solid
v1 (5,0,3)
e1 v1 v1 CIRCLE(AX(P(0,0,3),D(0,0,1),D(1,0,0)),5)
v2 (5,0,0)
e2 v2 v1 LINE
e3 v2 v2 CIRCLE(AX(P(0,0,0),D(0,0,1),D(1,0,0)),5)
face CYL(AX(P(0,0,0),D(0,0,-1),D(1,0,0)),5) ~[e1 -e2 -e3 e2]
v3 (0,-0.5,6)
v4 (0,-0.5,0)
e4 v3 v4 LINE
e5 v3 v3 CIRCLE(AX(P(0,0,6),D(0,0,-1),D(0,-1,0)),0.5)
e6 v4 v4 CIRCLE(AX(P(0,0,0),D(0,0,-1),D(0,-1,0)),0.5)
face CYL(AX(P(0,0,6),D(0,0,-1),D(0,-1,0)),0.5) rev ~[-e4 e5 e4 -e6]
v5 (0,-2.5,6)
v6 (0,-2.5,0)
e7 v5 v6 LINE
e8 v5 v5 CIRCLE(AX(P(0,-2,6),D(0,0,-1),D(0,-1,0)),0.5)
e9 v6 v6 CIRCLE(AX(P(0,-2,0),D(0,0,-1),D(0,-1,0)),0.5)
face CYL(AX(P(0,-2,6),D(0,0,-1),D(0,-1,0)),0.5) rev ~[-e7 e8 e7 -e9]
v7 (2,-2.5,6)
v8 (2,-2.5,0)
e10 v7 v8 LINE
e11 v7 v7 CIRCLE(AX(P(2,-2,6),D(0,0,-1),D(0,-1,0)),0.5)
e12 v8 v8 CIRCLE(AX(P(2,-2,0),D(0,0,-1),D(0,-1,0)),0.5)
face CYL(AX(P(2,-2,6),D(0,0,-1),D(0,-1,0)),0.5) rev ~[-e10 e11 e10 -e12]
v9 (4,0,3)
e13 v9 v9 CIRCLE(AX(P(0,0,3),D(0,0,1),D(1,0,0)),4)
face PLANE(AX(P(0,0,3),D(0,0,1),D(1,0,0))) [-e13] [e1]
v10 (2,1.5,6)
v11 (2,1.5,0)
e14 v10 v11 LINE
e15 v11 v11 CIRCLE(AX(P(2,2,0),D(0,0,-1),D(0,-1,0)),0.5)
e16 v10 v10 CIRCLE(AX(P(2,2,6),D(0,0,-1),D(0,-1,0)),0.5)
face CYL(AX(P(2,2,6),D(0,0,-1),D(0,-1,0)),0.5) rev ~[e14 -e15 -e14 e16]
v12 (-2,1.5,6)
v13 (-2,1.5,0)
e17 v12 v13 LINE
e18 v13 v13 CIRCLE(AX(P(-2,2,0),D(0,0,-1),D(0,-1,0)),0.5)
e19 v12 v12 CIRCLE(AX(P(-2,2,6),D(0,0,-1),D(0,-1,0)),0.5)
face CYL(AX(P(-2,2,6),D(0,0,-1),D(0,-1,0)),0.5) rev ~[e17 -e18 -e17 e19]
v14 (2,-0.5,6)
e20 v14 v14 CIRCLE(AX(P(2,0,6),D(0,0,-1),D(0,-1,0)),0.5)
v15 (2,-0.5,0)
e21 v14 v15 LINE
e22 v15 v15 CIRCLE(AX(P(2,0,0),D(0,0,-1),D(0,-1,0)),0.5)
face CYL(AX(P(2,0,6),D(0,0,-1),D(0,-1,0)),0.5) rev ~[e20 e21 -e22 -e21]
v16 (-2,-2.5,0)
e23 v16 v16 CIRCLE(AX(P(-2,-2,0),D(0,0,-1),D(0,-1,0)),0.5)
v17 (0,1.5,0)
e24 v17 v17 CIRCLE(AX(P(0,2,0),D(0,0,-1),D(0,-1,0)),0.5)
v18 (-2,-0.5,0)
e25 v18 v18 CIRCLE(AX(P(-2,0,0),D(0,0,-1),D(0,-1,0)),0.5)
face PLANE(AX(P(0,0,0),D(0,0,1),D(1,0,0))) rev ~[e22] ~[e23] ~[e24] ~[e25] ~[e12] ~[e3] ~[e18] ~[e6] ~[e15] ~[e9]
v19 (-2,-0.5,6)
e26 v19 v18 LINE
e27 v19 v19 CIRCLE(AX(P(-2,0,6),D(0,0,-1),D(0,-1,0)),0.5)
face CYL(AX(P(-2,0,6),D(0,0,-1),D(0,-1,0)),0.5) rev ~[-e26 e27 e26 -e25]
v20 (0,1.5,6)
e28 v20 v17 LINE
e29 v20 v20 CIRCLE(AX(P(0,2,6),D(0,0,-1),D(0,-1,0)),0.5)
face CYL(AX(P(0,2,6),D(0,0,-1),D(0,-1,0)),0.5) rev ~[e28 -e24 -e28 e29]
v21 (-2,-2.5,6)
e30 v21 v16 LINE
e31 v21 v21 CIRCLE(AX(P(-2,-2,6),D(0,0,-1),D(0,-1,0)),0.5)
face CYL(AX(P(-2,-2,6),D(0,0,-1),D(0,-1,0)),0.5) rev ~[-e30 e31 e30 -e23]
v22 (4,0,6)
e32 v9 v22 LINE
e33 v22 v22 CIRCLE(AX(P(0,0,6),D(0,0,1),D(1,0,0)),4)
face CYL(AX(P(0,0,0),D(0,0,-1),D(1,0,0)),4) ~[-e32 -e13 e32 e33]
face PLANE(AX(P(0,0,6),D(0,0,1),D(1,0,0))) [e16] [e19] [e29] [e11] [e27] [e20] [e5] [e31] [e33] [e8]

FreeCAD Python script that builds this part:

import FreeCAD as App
import Part
import Sketcher

doc = App.newDocument("Part")
body = doc.addObject("PartDesign::Body", "Body")

# Sketch on XY plane
sketch1 = doc.addObject("Sketcher::SketchObject", "Sketch")
body.addObject(sketch1)
sketch1.AttachmentSupport = (doc.XY_Plane, [""])
sketch1.MapMode = "FlatFace"
sketch1.addGeometry([
    Part.Circle(App.Vector(0, 0, 0), App.Vector(0, 0, 1), 5),
    Part.Circle(App.Vector(0, 0, 0), App.Vector(0, 0, 1), 4),
], False)
sketch1.addConstraint([
    Sketcher.Constraint("Coincident", 0, 3, -1, 1),
    Sketcher.Constraint("Coincident", 1, 3, -1, 1),
    Sketcher.Constraint("Diameter", 1, 8.0),
    Sketcher.Constraint("Diameter", 0, 10.0),
])
pad1 = doc.addObject("PartDesign::Pad", "Pad")
body.addObject(pad1)
pad1.Profile = sketch1
pad1.Length = 3

# Sketch on XY plane
sketch2 = doc.addObject("Sketcher::SketchObject", "Sketch001")
body.addObject(sketch2)
sketch2.AttachmentSupport = (doc.XY_Plane, [""])
sketch2.MapMode = "FlatFace"
sketch2.addGeometry(Part.Circle(App.Vector(0, 0, 0), App.Vector(0, 0, 1), 4), False)
sketch2.addConstraint([
    Sketcher.Constraint("Coincident", 0, 3, -1, 1),
    Sketcher.Constraint("Diameter", 0, 8.0),
])
pad2 = doc.addObject("PartDesign::Pad", "Pad001")
body.addObject(pad2)
pad2.Profile = sketch2
pad2.Length = 6

# Sketch on XY plane
sketch3 = doc.addObject("Sketcher::SketchObject", "Sketch002")
body.addObject(sketch3)
sketch3.AttachmentSupport = (doc.XY_Plane, [""])
sketch3.MapMode = "FlatFace"
sketch3.AttachmentOffset = App.Placement(App.Vector(0, 0, 6), App.Rotation())
sketch3.addGeometry([
    Part.Circle(App.Vector(2, -2, 0), App.Vector(0, 0, 1), 0.5),  # 0
    Part.Circle(App.Vector(0, -2, 0), App.Vector(0, 0, 1), 0.5),  # 1
    Part.Circle(App.Vector(-2, -2, 0), App.Vector(0, 0, 1), 0.5),  # 2
    Part.Circle(App.Vector(2, 0, 0), App.Vector(0, 0, 1), 0.5),  # 3
    Part.Circle(App.Vector(0, 0, 0), App.Vector(0, 0, 1), 0.5),  # 4
    Part.Circle(App.Vector(-2, 0, 0), App.Vector(0, 0, 1), 0.5),  # 5
    Part.Circle(App.Vector(2, 2, 0), App.Vector(0, 0, 1), 0.5),  # 6
    Part.Circle(App.Vector(0, 2, 0), App.Vector(0, 0, 1), 0.5),  # 7
    Part.Circle(App.Vector(-2, 2, 0), App.Vector(0, 0, 1), 0.5),  # 8
], False)
sketch3.addConstraint([
    Sketcher.Constraint("Coincident", 4, 3, -1, 1),
    Sketcher.Constraint("Equal", 0, 1),
    Sketcher.Constraint("Equal", 1, 2),
    Sketcher.Constraint("Equal", 2, 3),
    Sketcher.Constraint("Equal", 3, 4),
    Sketcher.Constraint("Equal", 4, 5),
    Sketcher.Constraint("Equal", 5, 6),
    Sketcher.Constraint("Equal", 6, 7),
    Sketcher.Constraint("Equal", 7, 8),
    Sketcher.Constraint("Symmetric", 3, 3, 5, 3, -1, 1),
    Sketcher.Constraint("Symmetric", 2, 3, 6, 3, -1, 1),
    Sketcher.Constraint("Symmetric", 1, 3, 7, 3, -1, 1),
    Sketcher.Constraint("Symmetric", 0, 3, 8, 3, -1, 1),
    Sketcher.Constraint("Symmetric", 0, 3, 2, 3, -2),
    Sketcher.Constraint("PointOnObject", 1, 3, -2),
    Sketcher.Constraint("PointOnObject", 3, 3, -1),
    Sketcher.Constraint("Horizontal", 0, 3, 1, 3),
    Sketcher.Constraint("Vertical", 0, 3, 3, 3),
    Sketcher.Constraint("Diameter", 0, 1.0),
    Sketcher.Constraint("DistanceX", -1, 1, 0, 3, 2.0),
    Sketcher.Constraint("DistanceY", 0, 3, -1, 1, 2.0),
])
doc.recompute()
hole = doc.addObject("PartDesign::Hole", "Hole")
body.addObject(hole)
hole.Profile = sketch3
hole.ThreadType = "None"
hole.Diameter = 1
hole.DepthType = "Dimension"
hole.Depth = 6
hole.DrillPoint = "Flat"

doc.recompute()
